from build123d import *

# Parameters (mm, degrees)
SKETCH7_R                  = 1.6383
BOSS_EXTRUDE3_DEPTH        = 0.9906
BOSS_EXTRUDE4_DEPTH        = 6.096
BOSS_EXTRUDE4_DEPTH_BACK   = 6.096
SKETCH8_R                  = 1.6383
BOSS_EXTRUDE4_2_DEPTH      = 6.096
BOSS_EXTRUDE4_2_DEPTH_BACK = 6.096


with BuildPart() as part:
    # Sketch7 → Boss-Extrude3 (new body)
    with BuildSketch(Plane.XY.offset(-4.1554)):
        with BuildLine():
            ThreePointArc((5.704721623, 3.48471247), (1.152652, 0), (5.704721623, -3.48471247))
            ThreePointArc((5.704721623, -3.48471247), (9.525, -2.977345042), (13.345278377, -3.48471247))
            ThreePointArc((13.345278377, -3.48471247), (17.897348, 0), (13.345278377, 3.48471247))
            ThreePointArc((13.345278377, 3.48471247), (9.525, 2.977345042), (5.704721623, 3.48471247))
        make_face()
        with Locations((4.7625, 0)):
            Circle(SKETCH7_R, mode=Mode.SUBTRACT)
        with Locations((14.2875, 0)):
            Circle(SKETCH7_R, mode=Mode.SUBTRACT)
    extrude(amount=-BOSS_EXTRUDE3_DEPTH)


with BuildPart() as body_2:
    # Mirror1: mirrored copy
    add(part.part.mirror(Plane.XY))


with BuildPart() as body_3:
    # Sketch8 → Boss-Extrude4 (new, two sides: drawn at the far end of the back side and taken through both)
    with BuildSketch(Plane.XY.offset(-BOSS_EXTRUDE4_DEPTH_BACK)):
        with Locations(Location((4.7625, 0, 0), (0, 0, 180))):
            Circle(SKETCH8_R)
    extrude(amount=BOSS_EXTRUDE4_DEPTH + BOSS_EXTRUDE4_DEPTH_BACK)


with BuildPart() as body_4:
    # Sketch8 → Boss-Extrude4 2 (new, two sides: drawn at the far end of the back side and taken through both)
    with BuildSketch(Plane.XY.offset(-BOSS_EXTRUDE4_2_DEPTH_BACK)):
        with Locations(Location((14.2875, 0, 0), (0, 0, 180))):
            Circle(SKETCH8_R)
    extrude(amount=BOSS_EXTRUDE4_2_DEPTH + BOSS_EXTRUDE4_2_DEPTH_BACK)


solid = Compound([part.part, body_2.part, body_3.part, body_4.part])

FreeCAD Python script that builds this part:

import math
import FreeCAD as App
import Part
import Sketcher
from FreeCAD import Vector
Q = App.Units.Quantity

doc = App.newDocument("Part")
body = doc.addObject("PartDesign::Body", "Body")

# Sketch on XY plane
sketch1 = body.newObject("Sketcher::SketchObject", "Sketch")
sketch1.AttachmentSupport = (doc.getObject("XY_Plane"), [""])
sketch1.MapMode = "FlatFace"
sketch1.AttachmentOffset = App.Placement(Vector(0, 0, -4.1554), App.Rotation())
sketch1.addGeometry(Part.ArcOfCircle(Part.Circle(Vector(4.8, 0, 0), Vector(0, 0, 1), 3.6), math.radians(75), math.radians(285)), False)
sketch1.addGeometry(Part.ArcOfCircle(Part.Circle(Vector(9.5, -17.6, 0), Vector(0, 0, 1), 14.6), math.radians(75), math.radians(105)), False)
sketch1.addGeometry(Part.ArcOfCircle(Part.Circle(Vector(14.3, 0, 0), Vector(0, 0, 1), 3.6), math.radians(-105), math.radians(105)), False)
sketch1.addGeometry(Part.ArcOfCircle(Part.Circle(Vector(9.5, 17.6, 0), Vector(0, 0, 1), 14.6), math.radians(-105), math.radians(-75)), False)
sketch1.addGeometry(Part.Circle(Vector(4.8, 0, 0), Vector(0, 0, 1), 1.6), False)
sketch1.addGeometry(Part.Circle(Vector(14.3, 0, 0), Vector(0, 0, 1), 1.6), False)
sketch1.addConstraint(Sketcher.Constraint("Tangent", 0, 2, 1, 2))
sketch1.addConstraint(Sketcher.Constraint("Tangent", 1, 1, 2, 1))
sketch1.addConstraint(Sketcher.Constraint("Tangent", 2, 2, 3, 2))
sketch1.addConstraint(Sketcher.Constraint("Tangent", 3, 1, 0, 1))
sketch1.addConstraint(Sketcher.Constraint("Coincident", 4, 3, 0, 3))
sketch1.addConstraint(Sketcher.Constraint("Coincident", 5, 3, 2, 3))
sketch1.addConstraint(Sketcher.Constraint("Equal", 0, 2))
sketch1.addConstraint(Sketcher.Constraint("Equal", 1, 3))
sketch1.addConstraint(Sketcher.Constraint("Equal", 4, 5))
sketch1.addConstraint(Sketcher.Constraint("Symmetric", 1, 3, 3, 3, -1))
sketch1.addConstraint(Sketcher.Constraint("Diameter", 4, Q("0.129 in")))
sketch1.addConstraint(Sketcher.Constraint("DistanceX", -1, 1, 0, 3, Q("0.1875 in")))
sketch1.addConstraint(Sketcher.Constraint("DistanceX", -1, 1, 1, 3, Q("0.375 in")))
sketch1.addConstraint(Sketcher.Constraint("Radius", 0, 3.609848))
sketch1.addConstraint(Sketcher.Constraint("Radius", 1, 14.636285))
pad1 = body.newObject("PartDesign::Pad", "Pad")
pad1.Profile = sketch1
pad1.Length = Q("0.039 in")
pad1.Reversed = True
body2 = doc.addObject("PartDesign::Body", "Body001")
doc.recompute()

mirroring = doc.addObject("Part::Mirroring", "Mirroring")
mirroring.Source = body
mirroring.Base = Vector(0, 0, 0)
mirroring.Normal = Vector(0, 0, 1)
body2.BaseFeature = mirroring
doc.recompute()
body3 = doc.addObject("PartDesign::Body", "Body002")

# Sketch on XY plane
sketch2 = body3.newObject("Sketcher::SketchObject", "Sketch001")
sketch2.AttachmentSupport = (doc.getObject("XY_Plane002"), [""])
sketch2.MapMode = "FlatFace"
sketch2.addGeometry(Part.Circle(Vector(4.8, 0, 0), Vector(0, 0, 1), 1.6), False)
sketch2.addConstraint(Sketcher.Constraint("PointOnObject", 0, 3, -1))
sketch2.addConstraint(Sketcher.Constraint("Diameter", 0, Q("0.129 in")))
sketch2.addConstraint(Sketcher.Constraint("DistanceX", -1, 1, 0, 3, Q("0.1875 in")))
pad2 = body3.newObject("PartDesign::Pad", "Pad001")
pad2.Profile = sketch2
pad2.Type = "TwoLengths"
pad2.Length = Q("0.24 in")
pad2.Length2 = Q("0.24 in")
body4 = doc.addObject("PartDesign::Body", "Body003")

# Sketch on XY plane
sketch3 = body4.newObject("Sketcher::SketchObject", "Sketch002")
sketch3.AttachmentSupport = (doc.getObject("XY_Plane003"), [""])
sketch3.MapMode = "FlatFace"
sketch3.addGeometry(Part.Circle(Vector(14.3, 0, 0), Vector(0, 0, 1), 1.6), False)
sketch3.addConstraint(Sketcher.Constraint("PointOnObject", 0, 3, -1))
sketch3.addConstraint(Sketcher.Constraint("Diameter", 0, Q("0.129 in")))
sketch3.addConstraint(Sketcher.Constraint("DistanceX", -1, 1, 0, 3, Q("0.5625 in")))
pad3 = body4.newObject("PartDesign::Pad", "Pad002")
pad3.Profile = sketch3
pad3.Type = "TwoLengths"
pad3.Length = Q("0.24 in")
pad3.Length2 = Q("0.24 in")
mirroring.Visibility = False

doc.recompute()
